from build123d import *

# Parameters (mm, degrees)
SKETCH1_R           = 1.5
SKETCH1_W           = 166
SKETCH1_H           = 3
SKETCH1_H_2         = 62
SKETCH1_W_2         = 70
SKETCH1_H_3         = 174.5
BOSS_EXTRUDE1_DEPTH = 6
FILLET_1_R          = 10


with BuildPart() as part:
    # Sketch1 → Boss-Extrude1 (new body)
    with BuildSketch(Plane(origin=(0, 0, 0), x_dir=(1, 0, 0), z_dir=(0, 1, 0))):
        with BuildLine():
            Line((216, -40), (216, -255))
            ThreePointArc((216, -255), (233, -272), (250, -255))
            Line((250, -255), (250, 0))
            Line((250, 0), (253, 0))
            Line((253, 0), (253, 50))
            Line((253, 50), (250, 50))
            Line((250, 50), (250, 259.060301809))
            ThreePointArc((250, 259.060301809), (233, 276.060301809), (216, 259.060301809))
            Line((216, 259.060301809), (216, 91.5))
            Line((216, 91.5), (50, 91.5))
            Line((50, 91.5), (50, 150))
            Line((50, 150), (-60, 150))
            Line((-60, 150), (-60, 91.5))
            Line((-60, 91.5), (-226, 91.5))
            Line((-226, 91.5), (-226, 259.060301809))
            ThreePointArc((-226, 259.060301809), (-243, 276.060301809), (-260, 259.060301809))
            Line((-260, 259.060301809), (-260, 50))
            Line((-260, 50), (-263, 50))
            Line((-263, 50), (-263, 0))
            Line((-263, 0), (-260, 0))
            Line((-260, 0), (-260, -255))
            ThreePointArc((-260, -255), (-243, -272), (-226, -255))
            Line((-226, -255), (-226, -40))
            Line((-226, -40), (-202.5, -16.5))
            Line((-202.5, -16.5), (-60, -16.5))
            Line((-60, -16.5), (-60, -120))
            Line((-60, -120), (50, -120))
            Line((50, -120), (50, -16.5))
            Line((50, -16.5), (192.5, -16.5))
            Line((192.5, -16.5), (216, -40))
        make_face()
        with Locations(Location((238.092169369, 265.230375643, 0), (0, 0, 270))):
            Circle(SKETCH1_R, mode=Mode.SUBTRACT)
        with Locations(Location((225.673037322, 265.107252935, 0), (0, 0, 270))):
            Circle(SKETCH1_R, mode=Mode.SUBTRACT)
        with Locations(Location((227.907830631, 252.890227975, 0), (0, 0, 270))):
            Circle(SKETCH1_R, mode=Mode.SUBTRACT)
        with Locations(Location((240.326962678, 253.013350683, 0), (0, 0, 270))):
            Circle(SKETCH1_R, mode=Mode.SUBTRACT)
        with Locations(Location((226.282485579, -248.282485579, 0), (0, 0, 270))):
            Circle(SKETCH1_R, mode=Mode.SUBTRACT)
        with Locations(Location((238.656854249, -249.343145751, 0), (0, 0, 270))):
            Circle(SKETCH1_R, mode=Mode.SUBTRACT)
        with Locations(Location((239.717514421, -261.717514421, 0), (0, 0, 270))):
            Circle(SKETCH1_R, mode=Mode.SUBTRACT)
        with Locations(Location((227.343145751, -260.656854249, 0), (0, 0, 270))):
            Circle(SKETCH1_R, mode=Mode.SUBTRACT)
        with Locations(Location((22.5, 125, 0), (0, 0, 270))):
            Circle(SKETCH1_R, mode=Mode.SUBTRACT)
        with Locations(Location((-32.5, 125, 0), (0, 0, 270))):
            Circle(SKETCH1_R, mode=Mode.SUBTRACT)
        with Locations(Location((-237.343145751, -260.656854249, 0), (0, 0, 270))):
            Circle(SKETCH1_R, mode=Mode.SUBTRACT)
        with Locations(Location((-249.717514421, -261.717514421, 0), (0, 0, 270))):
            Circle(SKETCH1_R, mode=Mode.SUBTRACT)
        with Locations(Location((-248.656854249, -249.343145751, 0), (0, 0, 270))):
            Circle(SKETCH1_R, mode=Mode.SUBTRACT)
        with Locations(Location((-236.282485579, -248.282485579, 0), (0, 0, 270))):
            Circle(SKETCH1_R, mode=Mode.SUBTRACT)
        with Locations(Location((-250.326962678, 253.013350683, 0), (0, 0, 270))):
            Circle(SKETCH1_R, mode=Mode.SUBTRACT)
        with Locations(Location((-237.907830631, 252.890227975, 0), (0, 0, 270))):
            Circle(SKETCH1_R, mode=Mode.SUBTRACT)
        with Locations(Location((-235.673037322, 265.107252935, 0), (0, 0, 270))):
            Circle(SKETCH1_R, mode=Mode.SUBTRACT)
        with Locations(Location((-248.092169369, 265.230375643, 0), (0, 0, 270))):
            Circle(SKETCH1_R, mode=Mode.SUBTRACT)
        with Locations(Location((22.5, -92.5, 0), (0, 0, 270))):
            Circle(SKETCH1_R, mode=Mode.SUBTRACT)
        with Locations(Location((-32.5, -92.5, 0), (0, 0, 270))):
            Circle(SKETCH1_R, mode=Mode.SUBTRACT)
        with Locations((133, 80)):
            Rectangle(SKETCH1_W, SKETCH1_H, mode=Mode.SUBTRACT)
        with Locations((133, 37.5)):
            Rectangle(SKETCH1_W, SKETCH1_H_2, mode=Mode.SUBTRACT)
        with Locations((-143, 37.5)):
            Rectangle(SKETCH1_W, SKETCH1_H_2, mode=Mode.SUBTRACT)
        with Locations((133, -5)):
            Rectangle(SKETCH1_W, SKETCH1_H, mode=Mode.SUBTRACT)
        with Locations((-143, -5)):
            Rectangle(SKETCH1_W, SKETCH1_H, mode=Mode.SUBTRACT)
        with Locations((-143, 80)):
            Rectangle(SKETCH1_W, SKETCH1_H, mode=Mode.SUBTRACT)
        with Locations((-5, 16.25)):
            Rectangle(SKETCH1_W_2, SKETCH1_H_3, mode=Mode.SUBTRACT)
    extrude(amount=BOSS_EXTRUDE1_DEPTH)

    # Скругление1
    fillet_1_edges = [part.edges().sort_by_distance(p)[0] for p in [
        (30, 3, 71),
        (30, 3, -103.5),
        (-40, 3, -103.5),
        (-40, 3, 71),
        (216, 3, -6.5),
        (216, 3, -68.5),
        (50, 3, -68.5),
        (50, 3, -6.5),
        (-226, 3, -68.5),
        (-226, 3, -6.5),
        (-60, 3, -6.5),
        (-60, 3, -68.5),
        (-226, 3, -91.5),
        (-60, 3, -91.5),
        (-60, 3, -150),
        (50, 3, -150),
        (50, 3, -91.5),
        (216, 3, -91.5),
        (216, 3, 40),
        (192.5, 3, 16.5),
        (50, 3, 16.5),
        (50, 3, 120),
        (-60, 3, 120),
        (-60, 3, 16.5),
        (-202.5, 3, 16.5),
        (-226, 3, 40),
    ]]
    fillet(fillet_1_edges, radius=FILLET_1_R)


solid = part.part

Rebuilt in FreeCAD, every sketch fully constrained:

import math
import FreeCAD as App
import Part
import Sketcher

V = App.Vector
Q = App.Units.Quantity


def edges_at(feature, points):
    """Names of the edges that pass closest to the given points."""
    edges = feature.Shape.Edges
    near = lambda p: min(range(len(edges)), key=lambda i: edges[i].distToShape(Part.Vertex(*p))[0])
    return sorted({f"Edge{near(p) + 1}" for p in points})


def add_polygon(sketch, points):
    """Adds a closed chain of lines whose ends are joined by coincident constraints."""
    first, n = sketch.GeometryCount, len(points)
    for a, b in zip(points, points[1:] + points[:1]):
        sketch.addGeometry(Part.LineSegment(App.Vector(*a, 0), App.Vector(*b, 0)), False)
    for i in range(n):
        sketch.addConstraint(Sketcher.Constraint("Coincident", first + i, 2, first + (i + 1) % n, 1))

doc = App.newDocument("Part")
body = doc.addObject("PartDesign::Body", "Body")

# Sketch on XZ plane
sketch1 = doc.addObject("Sketcher::SketchObject", "Sketch")
body.addObject(sketch1)
sketch1.AttachmentSupport = (doc.XZ_Plane, [""])
sketch1.MapMode = "FlatFace"
sketch1.addGeometry(Part.LineSegment(V(216, 40, 0), V(216, 255, 0)), False)  # 0
sketch1.addGeometry(Part.ArcOfCircle(Part.Circle(V(233, 255, 0), V(0, 0, 1), 17), math.radians(0), math.radians(180)), False)  # 1
sketch1.addGeometry(Part.LineSegment(V(250, 255, 0), V(250, 0, 0)), False)  # 2
sketch1.addGeometry(Part.LineSegment(V(250, 0, 0), V(253, 0, 0)), False)  # 3
sketch1.addGeometry(Part.LineSegment(V(253, 0, 0), V(253, -50, 0)), False)  # 4
sketch1.addGeometry(Part.LineSegment(V(253, -50, 0), V(250, -50, 0)), False)  # 5
sketch1.addGeometry(Part.LineSegment(V(250, -50, 0), V(250, -259.060302, 0)), False)  # 6
sketch1.addGeometry(Part.ArcOfCircle(Part.Circle(V(233, -259.060302, 0), V(0, 0, 1), 17), math.radians(180), math.radians(360)), False)  # 7
sketch1.addGeometry(Part.LineSegment(V(216, -259.060302, 0), V(216, -91.5, 0)), False)  # 8
sketch1.addGeometry(Part.LineSegment(V(216, -91.5, 0), V(50, -91.5, 0)), False)  # 9
sketch1.addGeometry(Part.LineSegment(V(50, -91.5, 0), V(50, -150, 0)), False)  # 10
sketch1.addGeometry(Part.LineSegment(V(50, -150, 0), V(-60, -150, 0)), False)  # 11
sketch1.addGeometry(Part.LineSegment(V(-60, -150, 0), V(-60, -91.5, 0)), False)  # 12
sketch1.addGeometry(Part.LineSegment(V(-60, -91.5, 0), V(-226, -91.5, 0)), False)  # 13
sketch1.addGeometry(Part.LineSegment(V(-226, -91.5, 0), V(-226, -259.060302, 0)), False)  # 14
sketch1.addGeometry(Part.ArcOfCircle(Part.Circle(V(-243, -259.060302, 0), V(0, 0, 1), 17), math.radians(180), math.radians(360)), False)  # 15
sketch1.addGeometry(Part.LineSegment(V(-260, -259.060302, 0), V(-260, -50, 0)), False)  # 16
sketch1.addGeometry(Part.LineSegment(V(-260, -50, 0), V(-263, -50, 0)), False)  # 17
sketch1.addGeometry(Part.LineSegment(V(-263, -50, 0), V(-263, 0, 0)), False)  # 18
sketch1.addGeometry(Part.LineSegment(V(-263, 0, 0), V(-260, 0, 0)), False)  # 19
sketch1.addGeometry(Part.LineSegment(V(-260, 0, 0), V(-260, 255, 0)), False)  # 20
sketch1.addGeometry(Part.ArcOfCircle(Part.Circle(V(-243, 255, 0), V(0, 0, 1), 17), math.radians(0), math.radians(180)), False)  # 21
sketch1.addGeometry(Part.LineSegment(V(-226, 255, 0), V(-226, 40, 0)), False)  # 22
sketch1.addGeometry(Part.LineSegment(V(-226, 40, 0), V(-202.5, 16.5, 0)), False)  # 23
sketch1.addGeometry(Part.LineSegment(V(-202.5, 16.5, 0), V(-60, 16.5, 0)), False)  # 24
sketch1.addGeometry(Part.LineSegment(V(-60, 16.5, 0), V(-60, 120, 0)), False)  # 25
sketch1.addGeometry(Part.LineSegment(V(-60, 120, 0), V(50, 120, 0)), False)  # 26
sketch1.addGeometry(Part.LineSegment(V(50, 120, 0), V(50, 16.5, 0)), False)  # 27
sketch1.addGeometry(Part.LineSegment(V(50, 16.5, 0), V(192.5, 16.5, 0)), False)  # 28
sketch1.addGeometry(Part.LineSegment(V(192.5, 16.5, 0), V(216, 40, 0)), False)  # 29
sketch1.addGeometry(Part.Circle(V(-249.717514, 261.717514, 0), V(0, 0, 1), 1.5), False)  # 30
sketch1.addGeometry(Part.Circle(V(-237.343146, 260.656854, 0), V(0, 0, 1), 1.5), False)  # 31
sketch1.addGeometry(Part.Circle(V(-248.656854, 249.343146, 0), V(0, 0, 1), 1.5), False)  # 32
sketch1.addGeometry(Part.Circle(V(-236.282486, 248.282486, 0), V(0, 0, 1), 1.5), False)  # 33
add_polygon(sketch1, [(-60, 6.5), (-226, 6.5), (-226, 3.5), (-60, 3.5)])  # lines 34-37
sketch1.addGeometry(Part.Circle(V(-32.5, 92.5, 0), V(0, 0, 1), 1.5), False)  # 38
sketch1.addGeometry(Part.Circle(V(226.282486, 248.282486, 0), V(0, 0, 1), 1.5), False)  # 39
sketch1.addGeometry(Part.Circle(V(227.343146, 260.656854, 0), V(0, 0, 1), 1.5), False)  # 40
sketch1.addGeometry(Part.Circle(V(239.717514, 261.717514, 0), V(0, 0, 1), 1.5), False)  # 41
sketch1.addGeometry(Part.Circle(V(238.656854, 249.343146, 0), V(0, 0, 1), 1.5), False)  # 42
sketch1.addGeometry(Part.Circle(V(22.5, 92.5, 0), V(0, 0, 1), 1.5), False)  # 43
add_polygon(sketch1, [(216, 6.5), (50, 6.5), (50, 3.5), (216, 3.5)])  # lines 44-47
add_polygon(sketch1, [(-60, -6.5), (-226, -6.5), (-226, -68.5), (-60, -68.5)])  # lines 48-51
add_polygon(sketch1, [(-60, -78.5), (-226, -78.5), (-226, -81.5), (-60, -81.5)])  # lines 52-55
add_polygon(sketch1, [(30, 71), (-40, 71), (-40, -103.5), (30, -103.5)])  # lines 56-59
sketch1.addGeometry(Part.Circle(V(-32.5, -125, 0), V(0, 0, 1), 1.5), False)  # 60
sketch1.addGeometry(Part.Circle(V(-250.326963, -253.013351, 0), V(0, 0, 1), 1.5), False)  # 61
sketch1.addGeometry(Part.Circle(V(-237.907831, -252.890228, 0), V(0, 0, 1), 1.5), False)  # 62
sketch1.addGeometry(Part.Circle(V(-248.092169, -265.230376, 0), V(0, 0, 1), 1.5), False)  # 63
sketch1.addGeometry(Part.Circle(V(-235.673037, -265.107253, 0), V(0, 0, 1), 1.5), False)  # 64
sketch1.addGeometry(Part.Circle(V(22.5, -125, 0), V(0, 0, 1), 1.5), False)  # 65
add_polygon(sketch1, [(216, -6.5), (50, -6.5), (50, -68.5), (216, -68.5)])  # lines 66-69
add_polygon(sketch1, [(216, -78.5), (50, -78.5), (50, -81.5), (216, -81.5)])  # lines 70-73
sketch1.addGeometry(Part.Circle(V(225.673037, -265.107253, 0), V(0, 0, 1), 1.5), False)  # 74
sketch1.addGeometry(Part.Circle(V(227.907831, -252.890228, 0), V(0, 0, 1), 1.5), False)  # 75
sketch1.addGeometry(Part.Circle(V(240.326963, -253.013351, 0), V(0, 0, 1), 1.5), False)  # 76
sketch1.addGeometry(Part.Circle(V(238.092169, -265.230376, 0), V(0, 0, 1), 1.5), False)  # 77
sketch1.addConstraint(Sketcher.Constraint("Tangent", 0, 2, 1, 2))
sketch1.addConstraint(Sketcher.Constraint("Tangent", 1, 1, 2, 1))
sketch1.addConstraint(Sketcher.Constraint("Coincident", 2, 2, 3, 1))
sketch1.addConstraint(Sketcher.Constraint("Coincident", 3, 2, 4, 1))
sketch1.addConstraint(Sketcher.Constraint("Coincident", 4, 2, 5, 1))
sketch1.addConstraint(Sketcher.Constraint("Coincident", 5, 2, 6, 1))
sketch1.addConstraint(Sketcher.Constraint("Tangent", 6, 2, 7, 2))
sketch1.addConstraint(Sketcher.Constraint("Tangent", 7, 1, 8, 1))
sketch1.addConstraint(Sketcher.Constraint("Coincident", 8, 2, 9, 1))
sketch1.addConstraint(Sketcher.Constraint("Coincident", 9, 2, 10, 1))
sketch1.addConstraint(Sketcher.Constraint("Coincident", 10, 2, 11, 1))
sketch1.addConstraint(Sketcher.Constraint("Coincident", 11, 2, 12, 1))
sketch1.addConstraint(Sketcher.Constraint("Coincident", 12, 2, 13, 1))
sketch1.addConstraint(Sketcher.Constraint("Coincident", 13, 2, 14, 1))
sketch1.addConstraint(Sketcher.Constraint("Tangent", 14, 2, 15, 2))
sketch1.addConstraint(Sketcher.Constraint("Tangent", 15, 1, 16, 1))
sketch1.addConstraint(Sketcher.Constraint("Coincident", 16, 2, 17, 1))
sketch1.addConstraint(Sketcher.Constraint("Coincident", 17, 2, 18, 1))
sketch1.addConstraint(Sketcher.Constraint("Coincident", 18, 2, 19, 1))
sketch1.addConstraint(Sketcher.Constraint("Coincident", 19, 2, 20, 1))
sketch1.addConstraint(Sketcher.Constraint("Tangent", 20, 2, 21, 2))
sketch1.addConstraint(Sketcher.Constraint("Tangent", 21, 1, 22, 1))
sketch1.addConstraint(Sketcher.Constraint("Coincident", 22, 2, 23, 1))
sketch1.addConstraint(Sketcher.Constraint("Coincident", 23, 2, 24, 1))
sketch1.addConstraint(Sketcher.Constraint("Coincident", 24, 2, 25, 1))
sketch1.addConstraint(Sketcher.Constraint("Coincident", 25, 2, 26, 1))
sketch1.addConstraint(Sketcher.Constraint("Coincident", 26, 2, 27, 1))
sketch1.addConstraint(Sketcher.Constraint("Coincident", 27, 2, 28, 1))
sketch1.addConstraint(Sketcher.Constraint("Coincident", 28, 2, 29, 1))
sketch1.addConstraint(Sketcher.Constraint("Coincident", 29, 2, 0, 1))
sketch1.addConstraint(Sketcher.Constraint("Vertical", 0))
sketch1.addConstraint(Sketcher.Constraint("Vertical", 2))
sketch1.addConstraint(Sketcher.Constraint("Horizontal", 3))
sketch1.addConstraint(Sketcher.Constraint("Vertical", 4))
sketch1.addConstraint(Sketcher.Constraint("Horizontal", 5))
sketch1.addConstraint(Sketcher.Constraint("Vertical", 6))
sketch1.addConstraint(Sketcher.Constraint("Vertical", 8))
sketch1.addConstraint(Sketcher.Constraint("Horizontal", 9))
sketch1.addConstraint(Sketcher.Constraint("Vertical", 10))
sketch1.addConstraint(Sketcher.Constraint("Horizontal", 11))
sketch1.addConstraint(Sketcher.Constraint("Vertical", 12))
sketch1.addConstraint(Sketcher.Constraint("Horizontal", 13))
sketch1.addConstraint(Sketcher.Constraint("Vertical", 14))
sketch1.addConstraint(Sketcher.Constraint("Vertical", 16))
sketch1.addConstraint(Sketcher.Constraint("Horizontal", 17))
sketch1.addConstraint(Sketcher.Constraint("Vertical", 18))
sketch1.addConstraint(Sketcher.Constraint("Horizontal", 19))
sketch1.addConstraint(Sketcher.Constraint("Vertical", 20))
sketch1.addConstraint(Sketcher.Constraint("Vertical", 22))
sketch1.addConstraint(Sketcher.Constraint("Horizontal", 24))
sketch1.addConstraint(Sketcher.Constraint("Vertical", 25))
sketch1.addConstraint(Sketcher.Constraint("Horizontal", 26))
sketch1.addConstraint(Sketcher.Constraint("Vertical", 27))
sketch1.addConstraint(Sketcher.Constraint("Horizontal", 28))
sketch1.addConstraint(Sketcher.Constraint("Horizontal", 34))
sketch1.addConstraint(Sketcher.Constraint("Vertical", 35))
sketch1.addConstraint(Sketcher.Constraint("Horizontal", 36))
sketch1.addConstraint(Sketcher.Constraint("Vertical", 37))
sketch1.addConstraint(Sketcher.Constraint("Horizontal", 44))
sketch1.addConstraint(Sketcher.Constraint("Vertical", 45))
sketch1.addConstraint(Sketcher.Constraint("Horizontal", 46))
sketch1.addConstraint(Sketcher.Constraint("Vertical", 47))
sketch1.addConstraint(Sketcher.Constraint("Horizontal", 48))
sketch1.addConstraint(Sketcher.Constraint("Vertical", 49))
sketch1.addConstraint(Sketcher.Constraint("Horizontal", 50))
sketch1.addConstraint(Sketcher.Constraint("Vertical", 51))
sketch1.addConstraint(Sketcher.Constraint("Horizontal", 52))
sketch1.addConstraint(Sketcher.Constraint("Vertical", 53))
sketch1.addConstraint(Sketcher.Constraint("Horizontal", 54))
sketch1.addConstraint(Sketcher.Constraint("Vertical", 55))
sketch1.addConstraint(Sketcher.Constraint("Horizontal", 56))
sketch1.addConstraint(Sketcher.Constraint("Vertical", 57))
sketch1.addConstraint(Sketcher.Constraint("Horizontal", 58))
sketch1.addConstraint(Sketcher.Constraint("Vertical", 59))
sketch1.addConstraint(Sketcher.Constraint("Horizontal", 66))
sketch1.addConstraint(Sketcher.Constraint("Vertical", 67))
sketch1.addConstraint(Sketcher.Constraint("Horizontal", 68))
sketch1.addConstraint(Sketcher.Constraint("Vertical", 69))
sketch1.addConstraint(Sketcher.Constraint("Horizontal", 70))
sketch1.addConstraint(Sketcher.Constraint("Vertical", 71))
sketch1.addConstraint(Sketcher.Constraint("Horizontal", 72))
sketch1.addConstraint(Sketcher.Constraint("Vertical", 73))
sketch1.addConstraint(Sketcher.Constraint("Equal", 1, 7))
sketch1.addConstraint(Sketcher.Constraint("Equal", 7, 15))
sketch1.addConstraint(Sketcher.Constraint("Equal", 15, 21))
sketch1.addConstraint(Sketcher.Constraint("Equal", 30, 31))
sketch1.addConstraint(Sketcher.Constraint("Equal", 31, 32))
sketch1.addConstraint(Sketcher.Constraint("Equal", 32, 33))
sketch1.addConstraint(Sketcher.Constraint("Equal", 33, 38))
sketch1.addConstraint(Sketcher.Constraint("Equal", 38, 39))
sketch1.addConstraint(Sketcher.Constraint("Equal", 39, 40))
sketch1.addConstraint(Sketcher.Constraint("Equal", 40, 41))
sketch1.addConstraint(Sketcher.Constraint("Equal", 41, 42))
sketch1.addConstraint(Sketcher.Constraint("Equal", 42, 43))
sketch1.addConstraint(Sketcher.Constraint("Equal", 43, 60))
sketch1.addConstraint(Sketcher.Constraint("Equal", 60, 61))
sketch1.addConstraint(Sketcher.Constraint("Equal", 61, 62))
sketch1.addConstraint(Sketcher.Constraint("Equal", 62, 63))
sketch1.addConstraint(Sketcher.Constraint("Equal", 63, 64))
sketch1.addConstraint(Sketcher.Constraint("Equal", 64, 65))
sketch1.addConstraint(Sketcher.Constraint("Equal", 65, 74))
sketch1.addConstraint(Sketcher.Constraint("Equal", 74, 75))
sketch1.addConstraint(Sketcher.Constraint("Equal", 75, 76))
sketch1.addConstraint(Sketcher.Constraint("Equal", 76, 77))
sketch1.addConstraint(Sketcher.Constraint("Symmetric", 34, 2, 48, 2, -1))
sketch1.addConstraint(Sketcher.Constraint("Symmetric", 44, 2, 66, 2, -1))
sketch1.addConstraint(Sketcher.Constraint("PointOnObject", 2, 2, -1))
sketch1.addConstraint(Sketcher.Constraint("PointOnObject", 18, 2, -1))
sketch1.addConstraint(Sketcher.Constraint("Perpendicular", 23, 29))
sketch1.addConstraint(Sketcher.Constraint("Horizontal", 7, 3, 15, 3))
sketch1.addConstraint(Sketcher.Constraint("Horizontal", 1, 3, 21, 3))
sketch1.addConstraint(Sketcher.Constraint("Horizontal", 33, 3, 39, 3))
sketch1.addConstraint(Sketcher.Constraint("Horizontal", 31, 3, 40, 3))
sketch1.addConstraint(Sketcher.Constraint("Horizontal", 30, 3, 41, 3))
sketch1.addConstraint(Sketcher.Constraint("Horizontal", 32, 3, 42, 3))
sketch1.addConstraint(Sketcher.Constraint("Horizontal", 38, 3, 43, 3))
sketch1.addConstraint(Sketcher.Constraint("Horizontal", 60, 3, 65, 3))
sketch1.addConstraint(Sketcher.Constraint("Horizontal", 64, 3, 74, 3))
sketch1.addConstraint(Sketcher.Constraint("Horizontal", 62, 3, 75, 3))
sketch1.addConstraint(Sketcher.Constraint("Horizontal", 61, 3, 76, 3))
sketch1.addConstraint(Sketcher.Constraint("Horizontal", 63, 3, 77, 3))
sketch1.addConstraint(Sketcher.Constraint("Horizontal", 9, 2, 12, 2))
sketch1.addConstraint(Sketcher.Constraint("Horizontal", 5, 2, 16, 2))
sketch1.addConstraint(Sketcher.Constraint("Horizontal", 24, 2, 27, 2))
sketch1.addConstraint(Sketcher.Constraint("Horizontal", 22, 2, 29, 2))
sketch1.addConstraint(Sketcher.Constraint("Horizontal", 37, 2, 44, 2))
sketch1.addConstraint(Sketcher.Constraint("Horizontal", 36, 2, 45, 2))
sketch1.addConstraint(Sketcher.Constraint("Horizontal", 50, 2, 67, 2))
sketch1.addConstraint(Sketcher.Constraint("Horizontal", 55, 2, 70, 2))
sketch1.addConstraint(Sketcher.Constraint("Horizontal", 54, 2, 71, 2))
sketch1.addConstraint(Sketcher.Constraint("Vertical", 1, 3, 7, 3))
sketch1.addConstraint(Sketcher.Constraint("Vertical", 15, 3, 21, 3))
sketch1.addConstraint(Sketcher.Constraint("Vertical", 38, 3, 60, 3))
sketch1.addConstraint(Sketcher.Constraint("Vertical", 43, 3, 65, 3))
sketch1.addConstraint(Sketcher.Constraint("Vertical", 12, 2, 24, 2))
sketch1.addConstraint(Sketcher.Constraint("Vertical", 10, 2, 26, 2))
sketch1.addConstraint(Sketcher.Constraint("Vertical", 22, 2, 34, 2))
sketch1.addConstraint(Sketcher.Constraint("Vertical", 25, 2, 36, 2))
sketch1.addConstraint(Sketcher.Constraint("Vertical", 27, 2, 44, 2))
sketch1.addConstraint(Sketcher.Constraint("Vertical", 29, 2, 46, 2))
sketch1.addConstraint(Sketcher.Constraint("Vertical", 37, 2, 50, 2))
sketch1.addConstraint(Sketcher.Constraint("Vertical", 49, 2, 52, 2))
sketch1.addConstraint(Sketcher.Constraint("Vertical", 51, 2, 54, 2))
sketch1.addConstraint(Sketcher.Constraint("Vertical", 47, 2, 68, 2))
sketch1.addConstraint(Sketcher.Constraint("Vertical", 67, 2, 70, 2))
sketch1.addConstraint(Sketcher.Constraint("Vertical", 69, 2, 72, 2))
sketch1.addConstraint(Sketcher.Constraint("Equal", 9, 13))
sketch1.addConstraint(Sketcher.Constraint("Equal", 5, 17))
sketch1.addConstraint(Sketcher.Constraint("Equal", 24, 28))
sketch1.addConstraint(Sketcher.Constraint("Equal", 19, 35))
sketch1.addConstraint(Sketcher.Constraint("Equal", 47, 53))
sketch1.addConstraint(Sketcher.Constraint("Diameter", 30, Q("3 mm")))
sketch1.addConstraint(Sketcher.Constraint("Radius", 1, Q("17 mm")))
sketch1.addConstraint(Sketcher.Constraint("DistanceX", 3, 1, 3, 2, Q("3 mm")))
sketch1.addConstraint(Sketcher.Constraint("DistanceX", 9, 2, 9, 1, Q("166 mm")))
sketch1.addConstraint(Sketcher.Constraint("DistanceX", 11, 2, 11, 1, Q("110 mm")))
sketch1.addConstraint(Sketcher.Constraint("DistanceX", 56, 2, 56, 1, Q("70 mm")))
sketch1.addConstraint(Sketcher.Constraint("DistanceY", 0, 1, 0, 2, Q("215 mm")))
sketch1.addConstraint(Sketcher.Constraint("DistanceY", 2, 2, 2, 1, Q("255 mm")))
sketch1.addConstraint(Sketcher.Constraint("DistanceY", 4, 2, 4, 1, Q("50 mm")))
sketch1.addConstraint(Sketcher.Constraint("DistanceY", 49, 2, 49, 1, Q("62 mm")))
sketch1.addConstraint(Sketcher.Constraint("DistanceX", 24, 1, 24, 2, Q("142.5 mm")))
sketch1.addConstraint(Sketcher.Constraint("DistanceY", 10, 2, 10, 1, Q("58.5 mm")))
sketch1.addConstraint(Sketcher.Constraint("DistanceY", 25, 1, 25, 2, Q("103.5 mm")))
sketch1.addConstraint(Sketcher.Constraint("DistanceY", 57, 2, 57, 1, Q("174.5 mm")))
sketch1.addConstraint(Sketcher.Constraint("DistanceX", -1, 1, 1, 3, Q("233 mm")))
sketch1.addConstraint(Sketcher.Constraint("DistanceY", 60, 3, -1, 1, Q("125 mm")))
sketch1.addConstraint(Sketcher.Constraint("DistanceY", 10, 2, -1, 1, Q("150 mm")))
sketch1.addConstraint(Sketcher.Constraint("DistanceX", 56, 2, -1, 1, Q("40 mm")))
sketch1.addConstraint(Sketcher.Constraint("DistanceY", -1, 1, 56, 2, Q("71 mm")))
sketch1.addConstraint(Sketcher.Constraint("DistanceX", 38, 3, -1, 1, Q("32.5 mm")))
sketch1.addConstraint(Sketcher.Constraint("DistanceY", -1, 1, 38, 3, Q("92.5 mm")))
sketch1.addConstraint(Sketcher.Constraint("DistanceX", -1, 1, 43, 3, Q("22.5 mm")))
sketch1.addConstraint(Sketcher.Constraint("DistanceY", -1, 1, 34, 2, Q("6.5 mm")))
sketch1.addConstraint(Sketcher.Constraint("DistanceY", 52, 2, -1, 1, Q("78.5 mm")))
sketch1.addConstraint(Sketcher.Constraint("DistanceY", 6, 2, 6, 1, Q("209.060302 mm")))
sketch1.addConstraint(Sketcher.Constraint("DistanceY", 61, 3, -1, 1, Q("253.013351 mm")))
sketch1.addConstraint(Sketcher.Constraint("DistanceX", 62, 3, -1, 1, Q("237.907831 mm")))
sketch1.addConstraint(Sketcher.Constraint("DistanceX", 63, 3, -1, 1, Q("248.092169 mm")))
sketch1.addConstraint(Sketcher.Constraint("DistanceX", -1, 1, 75, 3, Q("227.907831 mm")))
sketch1.addConstraint(Sketcher.Constraint("DistanceX", -1, 1, 77, 3, Q("238.092169 mm")))
sketch1.addConstraint(Sketcher.Constraint("DistanceX", 30, 3, -1, 1, Q("249.717514 mm")))
sketch1.addConstraint(Sketcher.Constraint("DistanceY", -1, 1, 30, 3, Q("261.717514 mm")))
sketch1.addConstraint(Sketcher.Constraint("DistanceX", 31, 3, -1, 1, Q("237.343146 mm")))
sketch1.addConstraint(Sketcher.Constraint("DistanceY", -1, 1, 31, 3, Q("260.656854 mm")))
sketch1.addConstraint(Sketcher.Constraint("DistanceX", 32, 3, -1, 1, Q("248.656854 mm")))
sketch1.addConstraint(Sketcher.Constraint("DistanceY", -1, 1, 32, 3, Q("249.343146 mm")))
sketch1.addConstraint(Sketcher.Constraint("DistanceX", 33, 3, -1, 1, Q("236.282486 mm")))
sketch1.addConstraint(Sketcher.Constraint("DistanceY", -1, 1, 33, 3, Q("248.282486 mm")))
sketch1.addConstraint(Sketcher.Constraint("DistanceX", -1, 1, 39, 3, Q("226.282486 mm")))
sketch1.addConstraint(Sketcher.Constraint("DistanceX", -1, 1, 40, 3, Q("227.343146 mm")))
sketch1.addConstraint(Sketcher.Constraint("DistanceX", -1, 1, 41, 3, Q("239.717514 mm")))
sketch1.addConstraint(Sketcher.Constraint("DistanceX", -1, 1, 42, 3, Q("238.656854 mm")))
sketch1.addConstraint(Sketcher.Constraint("DistanceX", 61, 3, -1, 1, Q("250.326963 mm")))
sketch1.addConstraint(Sketcher.Constraint("DistanceY", 62, 3, -1, 1, Q("252.890228 mm")))
sketch1.addConstraint(Sketcher.Constraint("DistanceY", 63, 3, -1, 1, Q("265.230376 mm")))
sketch1.addConstraint(Sketcher.Constraint("DistanceX", 64, 3, -1, 1, Q("235.673037 mm")))
sketch1.addConstraint(Sketcher.Constraint("DistanceY", 64, 3, -1, 1, Q("265.107253 mm")))
sketch1.addConstraint(Sketcher.Constraint("DistanceX", -1, 1, 74, 3, Q("225.673037 mm")))
sketch1.addConstraint(Sketcher.Constraint("DistanceX", -1, 1, 76, 3, Q("240.326963 mm")))
pad1 = doc.addObject("PartDesign::Pad", "Pad")
body.addObject(pad1)
pad1.Profile = sketch1
pad1.Length = 6
pad1.Reversed = True
doc.recompute()

fillet = doc.addObject("PartDesign::Fillet", "Fillet")
body.addObject(fillet)
fillet.Base = (pad1, edges_at(pad1, [
    (30, 3, 71),
    (30, 3, -103.5),
    (-40, 3, -103.5),
    (-40, 3, 71),
    (216, 3, -6.5),
    (216, 3, -68.5),
    (50, 3, -68.5),
    (50, 3, -6.5),
    (-226, 3, -68.5),
    (-226, 3, -6.5),
    (-60, 3, -6.5),
    (-60, 3, -68.5),
    (-226, 3, -91.5),
    (-60, 3, -91.5),
    (-60, 3, -150),
    (50, 3, -150),
    (50, 3, -91.5),
    (216, 3, -91.5),
    (216, 3, 40),
    (192.5, 3, 16.5),
    (50, 3, 16.5),
    (50, 3, 120),
    (-60, 3, 120),
    (-60, 3, 16.5),
    (-202.5, 3, 16.5),
    (-226, 3, 40),
]))
fillet.Radius = 10

doc.recompute()
